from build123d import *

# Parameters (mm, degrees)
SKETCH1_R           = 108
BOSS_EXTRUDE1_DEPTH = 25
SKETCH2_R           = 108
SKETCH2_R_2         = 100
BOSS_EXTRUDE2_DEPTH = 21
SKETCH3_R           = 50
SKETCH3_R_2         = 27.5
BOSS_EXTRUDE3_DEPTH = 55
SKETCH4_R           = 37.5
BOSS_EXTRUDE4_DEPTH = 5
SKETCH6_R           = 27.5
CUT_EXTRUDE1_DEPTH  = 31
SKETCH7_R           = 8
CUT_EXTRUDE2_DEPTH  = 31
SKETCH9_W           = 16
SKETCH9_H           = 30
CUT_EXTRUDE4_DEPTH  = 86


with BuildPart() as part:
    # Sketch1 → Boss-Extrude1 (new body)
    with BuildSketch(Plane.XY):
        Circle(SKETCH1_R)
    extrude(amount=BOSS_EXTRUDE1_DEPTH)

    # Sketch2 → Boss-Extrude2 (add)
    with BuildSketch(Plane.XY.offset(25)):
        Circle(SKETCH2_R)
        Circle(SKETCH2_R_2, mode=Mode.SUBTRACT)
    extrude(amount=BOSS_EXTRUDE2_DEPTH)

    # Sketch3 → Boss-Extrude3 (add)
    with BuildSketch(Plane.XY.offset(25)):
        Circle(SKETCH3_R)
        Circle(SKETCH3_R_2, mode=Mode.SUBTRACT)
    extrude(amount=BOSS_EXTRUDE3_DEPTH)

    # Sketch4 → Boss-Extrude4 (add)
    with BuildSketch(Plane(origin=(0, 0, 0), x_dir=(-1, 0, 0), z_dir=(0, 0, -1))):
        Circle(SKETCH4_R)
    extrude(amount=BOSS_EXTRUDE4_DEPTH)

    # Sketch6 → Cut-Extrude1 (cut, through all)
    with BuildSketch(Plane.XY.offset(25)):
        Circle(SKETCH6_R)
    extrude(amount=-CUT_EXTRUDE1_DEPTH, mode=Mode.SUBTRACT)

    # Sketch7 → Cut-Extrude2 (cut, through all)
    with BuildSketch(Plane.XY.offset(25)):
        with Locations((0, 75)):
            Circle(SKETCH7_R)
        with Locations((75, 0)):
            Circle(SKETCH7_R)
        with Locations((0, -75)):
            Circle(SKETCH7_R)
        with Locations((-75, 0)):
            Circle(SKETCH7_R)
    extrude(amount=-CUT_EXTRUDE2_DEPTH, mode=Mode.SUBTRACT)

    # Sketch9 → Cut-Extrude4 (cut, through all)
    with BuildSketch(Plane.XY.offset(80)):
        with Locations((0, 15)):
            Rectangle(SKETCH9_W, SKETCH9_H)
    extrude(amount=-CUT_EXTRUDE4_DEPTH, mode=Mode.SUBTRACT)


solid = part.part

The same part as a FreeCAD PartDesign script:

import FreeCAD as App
import Part
import Sketcher
Q = App.Units.Quantity


def add_polygon(sketch, points):
    """Adds a closed chain of lines whose ends are joined by coincident constraints."""
    first, n = sketch.GeometryCount, len(points)
    for a, b in zip(points, points[1:] + points[:1]):
        sketch.addGeometry(Part.LineSegment(App.Vector(*a, 0), App.Vector(*b, 0)), False)
    for i in range(n):
        sketch.addConstraint(Sketcher.Constraint("Coincident", first + i, 2, first + (i + 1) % n, 1))

doc = App.newDocument("Part")
body = doc.addObject("PartDesign::Body", "Body")

# Sketch on XY plane
sketch1 = doc.addObject("Sketcher::SketchObject", "Sketch")
body.addObject(sketch1)
sketch1.AttachmentSupport = (doc.XY_Plane, [""])
sketch1.MapMode = "FlatFace"
sketch1.addGeometry(Part.Circle(App.Vector(0, 0, 0), App.Vector(0, 0, 1), 108), False)
sketch1.addConstraint(Sketcher.Constraint("Coincident", 0, 3, -1, 1))
sketch1.addConstraint(Sketcher.Constraint("Diameter", 0, Q("216 mm")))
pad1 = doc.addObject("PartDesign::Pad", "Pad")
body.addObject(pad1)
pad1.Profile = sketch1
pad1.Length = 25

# Sketch on XY plane
sketch2 = doc.addObject("Sketcher::SketchObject", "Sketch001")
body.addObject(sketch2)
sketch2.AttachmentSupport = (doc.XY_Plane, [""])
sketch2.MapMode = "FlatFace"
sketch2.AttachmentOffset = App.Placement(App.Vector(0, 0, 25), App.Rotation())
sketch2.addGeometry(Part.Circle(App.Vector(0, 0, 0), App.Vector(0, 0, 1), 108), False)
sketch2.addGeometry(Part.Circle(App.Vector(0, 0, 0), App.Vector(0, 0, 1), 100), False)
sketch2.addConstraint(Sketcher.Constraint("Coincident", 0, 3, -1, 1))
sketch2.addConstraint(Sketcher.Constraint("Coincident", 1, 3, -1, 1))
sketch2.addConstraint(Sketcher.Constraint("Diameter", 0, Q("216 mm")))
sketch2.addConstraint(Sketcher.Constraint("Diameter", 1, Q("200 mm")))
pad2 = doc.addObject("PartDesign::Pad", "Pad001")
body.addObject(pad2)
pad2.Profile = sketch2
pad2.Length = 21

# Sketch on XY plane
sketch3 = doc.addObject("Sketcher::SketchObject", "Sketch002")
body.addObject(sketch3)
sketch3.AttachmentSupport = (doc.XY_Plane, [""])
sketch3.MapMode = "FlatFace"
sketch3.AttachmentOffset = App.Placement(App.Vector(0, 0, 25), App.Rotation())
sketch3.addGeometry(Part.Circle(App.Vector(0, 0, 0), App.Vector(0, 0, 1), 50), False)
sketch3.addGeometry(Part.Circle(App.Vector(0, 0, 0), App.Vector(0, 0, 1), 28), False)
sketch3.addConstraint(Sketcher.Constraint("Coincident", 0, 3, -1, 1))
sketch3.addConstraint(Sketcher.Constraint("Coincident", 1, 3, -1, 1))
sketch3.addConstraint(Sketcher.Constraint("Diameter", 0, Q("100 mm")))
sketch3.addConstraint(Sketcher.Constraint("Diameter", 1, Q("55 mm")))
pad3 = doc.addObject("PartDesign::Pad", "Pad002")
body.addObject(pad3)
pad3.Profile = sketch3
pad3.Length = 55

# Sketch on XY plane
sketch4 = doc.addObject("Sketcher::SketchObject", "Sketch003")
body.addObject(sketch4)
sketch4.AttachmentSupport = (doc.XY_Plane, [""])
sketch4.MapMode = "FlatFace"
sketch4.addGeometry(Part.Circle(App.Vector(0, 0, 0), App.Vector(0, 0, 1), 38), False)
sketch4.addConstraint(Sketcher.Constraint("Coincident", 0, 3, -1, 1))
sketch4.addConstraint(Sketcher.Constraint("Diameter", 0, Q("75 mm")))
pad4 = doc.addObject("PartDesign::Pad", "Pad003")
body.addObject(pad4)
pad4.Profile = sketch4
pad4.Length = 5
pad4.Reversed = True

# Sketch on XY plane
sketch5 = doc.addObject("Sketcher::SketchObject", "Sketch004")
body.addObject(sketch5)
sketch5.AttachmentSupport = (doc.XY_Plane, [""])
sketch5.MapMode = "FlatFace"
sketch5.AttachmentOffset = App.Placement(App.Vector(0, 0, 25), App.Rotation())
sketch5.addGeometry(Part.Circle(App.Vector(0, 0, 0), App.Vector(0, 0, 1), 28), False)
sketch5.addConstraint(Sketcher.Constraint("Coincident", 0, 3, -1, 1))
sketch5.addConstraint(Sketcher.Constraint("Diameter", 0, Q("55 mm")))
pocket1 = doc.addObject("PartDesign::Pocket", "Pocket")
body.addObject(pocket1)
pocket1.Profile = sketch5
pocket1.Type = "ThroughAll"

# Sketch on XY plane
sketch6 = doc.addObject("Sketcher::SketchObject", "Sketch005")
body.addObject(sketch6)
sketch6.AttachmentSupport = (doc.XY_Plane, [""])
sketch6.MapMode = "FlatFace"
sketch6.AttachmentOffset = App.Placement(App.Vector(0, 0, 25), App.Rotation())
sketch6.addGeometry(Part.Circle(App.Vector(0, 75, 0), App.Vector(0, 0, 1), 8), False)
sketch6.addGeometry(Part.Circle(App.Vector(75, 0, 0), App.Vector(0, 0, 1), 8), False)
sketch6.addGeometry(Part.Circle(App.Vector(0, -75, 0), App.Vector(0, 0, 1), 8), False)
sketch6.addGeometry(Part.Circle(App.Vector(-75, 0, 0), App.Vector(0, 0, 1), 8), False)
sketch6.addConstraint(Sketcher.Constraint("Equal", 0, 1))
sketch6.addConstraint(Sketcher.Constraint("Equal", 1, 2))
sketch6.addConstraint(Sketcher.Constraint("Equal", 2, 3))
sketch6.addConstraint(Sketcher.Constraint("Symmetric", 0, 3, 2, 3, -1, 1))
sketch6.addConstraint(Sketcher.Constraint("Symmetric", 1, 3, 3, 3, -1, 1))
sketch6.addConstraint(Sketcher.Constraint("PointOnObject", 0, 3, -2))
sketch6.addConstraint(Sketcher.Constraint("PointOnObject", 1, 3, -1))
sketch6.addConstraint(Sketcher.Constraint("Diameter", 0, Q("16 mm")))
sketch6.addConstraint(Sketcher.Constraint("DistanceY", -1, 1, 0, 3, Q("75 mm")))
sketch6.addConstraint(Sketcher.Constraint("DistanceX", -1, 1, 1, 3, Q("75 mm")))
pocket2 = doc.addObject("PartDesign::Pocket", "Pocket001")
body.addObject(pocket2)
pocket2.Profile = sketch6
pocket2.Type = "ThroughAll"

# Sketch on XY plane
sketch7 = doc.addObject("Sketcher::SketchObject", "Sketch006")
body.addObject(sketch7)
sketch7.AttachmentSupport = (doc.XY_Plane, [""])
sketch7.MapMode = "FlatFace"
sketch7.AttachmentOffset = App.Placement(App.Vector(0, 0, 80), App.Rotation())
add_polygon(sketch7, [(-8, 30), (-8, 0), (8, 0), (8, 30)])  # lines 0-3
sketch7.addConstraint(Sketcher.Constraint("Vertical", 0))
sketch7.addConstraint(Sketcher.Constraint("Horizontal", 1))
sketch7.addConstraint(Sketcher.Constraint("Vertical", 2))
sketch7.addConstraint(Sketcher.Constraint("Horizontal", 3))
sketch7.addConstraint(Sketcher.Constraint("Symmetric", 0, 2, 1, 2, -1, 1))
sketch7.addConstraint(Sketcher.Constraint("DistanceX", 1, 1, 1, 2, Q("16 mm")))
sketch7.addConstraint(Sketcher.Constraint("DistanceY", 0, 2, 0, 1, Q("30 mm")))
pocket3 = doc.addObject("PartDesign::Pocket", "Pocket002")
body.addObject(pocket3)
pocket3.Profile = sketch7
pocket3.Type = "ThroughAll"

doc.recompute()
